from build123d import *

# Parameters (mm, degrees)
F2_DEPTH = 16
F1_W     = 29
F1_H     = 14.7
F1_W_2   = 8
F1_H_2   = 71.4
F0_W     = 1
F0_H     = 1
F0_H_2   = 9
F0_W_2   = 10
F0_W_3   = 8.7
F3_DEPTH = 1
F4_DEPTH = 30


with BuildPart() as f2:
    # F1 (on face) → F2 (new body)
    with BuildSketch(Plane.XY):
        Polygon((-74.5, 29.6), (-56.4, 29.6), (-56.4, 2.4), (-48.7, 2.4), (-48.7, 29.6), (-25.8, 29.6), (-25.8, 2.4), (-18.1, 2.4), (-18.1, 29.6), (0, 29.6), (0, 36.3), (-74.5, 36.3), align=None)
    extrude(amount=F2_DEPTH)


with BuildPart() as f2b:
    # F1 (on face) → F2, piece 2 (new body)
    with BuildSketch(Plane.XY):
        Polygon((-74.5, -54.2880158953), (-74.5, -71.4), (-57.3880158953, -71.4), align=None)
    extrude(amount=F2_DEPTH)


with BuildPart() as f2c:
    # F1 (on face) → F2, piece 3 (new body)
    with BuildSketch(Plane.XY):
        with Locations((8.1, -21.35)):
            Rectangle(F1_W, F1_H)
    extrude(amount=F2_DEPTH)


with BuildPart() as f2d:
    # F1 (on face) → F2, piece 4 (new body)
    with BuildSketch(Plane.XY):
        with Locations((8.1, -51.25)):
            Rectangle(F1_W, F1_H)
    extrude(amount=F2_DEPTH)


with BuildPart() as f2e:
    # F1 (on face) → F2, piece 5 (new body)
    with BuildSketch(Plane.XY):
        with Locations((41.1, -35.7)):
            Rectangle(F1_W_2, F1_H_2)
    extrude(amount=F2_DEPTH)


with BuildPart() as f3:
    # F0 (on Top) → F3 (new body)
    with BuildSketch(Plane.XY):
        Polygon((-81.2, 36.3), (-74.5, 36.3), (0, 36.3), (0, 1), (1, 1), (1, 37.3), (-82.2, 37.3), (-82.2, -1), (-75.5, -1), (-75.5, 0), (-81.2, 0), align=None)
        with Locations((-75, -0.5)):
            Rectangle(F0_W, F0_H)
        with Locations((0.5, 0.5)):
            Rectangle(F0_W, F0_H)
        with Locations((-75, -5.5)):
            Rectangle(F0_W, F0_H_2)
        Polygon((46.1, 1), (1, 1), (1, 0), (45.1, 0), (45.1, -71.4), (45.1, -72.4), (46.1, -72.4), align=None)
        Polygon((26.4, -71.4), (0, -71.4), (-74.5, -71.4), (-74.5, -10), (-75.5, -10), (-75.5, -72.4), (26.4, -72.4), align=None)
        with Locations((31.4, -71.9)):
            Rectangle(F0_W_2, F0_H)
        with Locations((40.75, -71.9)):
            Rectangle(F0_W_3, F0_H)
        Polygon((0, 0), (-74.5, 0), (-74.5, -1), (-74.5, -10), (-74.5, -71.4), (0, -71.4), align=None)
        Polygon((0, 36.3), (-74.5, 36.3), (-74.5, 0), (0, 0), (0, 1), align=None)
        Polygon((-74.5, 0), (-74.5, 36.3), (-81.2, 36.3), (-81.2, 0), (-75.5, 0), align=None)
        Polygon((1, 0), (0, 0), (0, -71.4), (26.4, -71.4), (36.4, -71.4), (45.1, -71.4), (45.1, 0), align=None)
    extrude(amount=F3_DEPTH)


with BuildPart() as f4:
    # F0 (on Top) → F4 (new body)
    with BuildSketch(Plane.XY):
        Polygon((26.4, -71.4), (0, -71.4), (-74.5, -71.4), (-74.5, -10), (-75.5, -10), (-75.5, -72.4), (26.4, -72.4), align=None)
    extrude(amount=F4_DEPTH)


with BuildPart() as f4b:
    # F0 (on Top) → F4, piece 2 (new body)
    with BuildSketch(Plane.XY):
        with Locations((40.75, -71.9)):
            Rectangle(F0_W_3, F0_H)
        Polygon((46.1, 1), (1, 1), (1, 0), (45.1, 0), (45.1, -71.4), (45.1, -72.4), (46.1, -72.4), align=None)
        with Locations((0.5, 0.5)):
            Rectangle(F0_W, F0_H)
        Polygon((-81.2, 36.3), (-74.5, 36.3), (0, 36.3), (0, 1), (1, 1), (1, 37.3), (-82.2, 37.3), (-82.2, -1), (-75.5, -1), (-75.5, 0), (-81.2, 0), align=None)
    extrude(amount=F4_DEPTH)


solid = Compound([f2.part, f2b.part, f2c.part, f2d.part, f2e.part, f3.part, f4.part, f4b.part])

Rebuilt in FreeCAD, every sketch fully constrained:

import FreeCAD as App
import Part
import Sketcher
from FreeCAD import Vector
Q = App.Units.Quantity


def add_polygon(sketch, points):
    """Adds a closed chain of lines whose ends are joined by coincident constraints."""
    first, n = sketch.GeometryCount, len(points)
    for a, b in zip(points, points[1:] + points[:1]):
        sketch.addGeometry(Part.LineSegment(App.Vector(*a, 0), App.Vector(*b, 0)), False)
    for i in range(n):
        sketch.addConstraint(Sketcher.Constraint("Coincident", first + i, 2, first + (i + 1) % n, 1))

doc = App.newDocument("Part")
params = doc.addObject("Spreadsheet::Sheet", "Params")
for row, (alias, value) in enumerate([
    ("sketch1_width", "18.1 mm"),
    ("sketch1_width2", "7.7 mm"),
    ("sketch1_width3", "22.9 mm"),
    ("sketch1_height", "27.2 mm"),
    ("sketch1_height2", "6.7 mm"),
    ("pad1_length", "16 mm"),
    ("sketch2_length", "24.2 mm"),
    ("pad2_length", "16 mm"),
    ("sketch3_width", "29 mm"),
    ("sketch3_height", "14.7 mm"),
    ("pad3_length", "16 mm"),
    ("sketch4_width", "29 mm"),
    ("sketch4_height", "14.7 mm"),
    ("pad4_length", "16 mm"),
    ("sketch5_width", "8 mm"),
    ("sketch5_height", "71.4 mm"),
    ("pad5_length", "16 mm"),
    ("sketch6_width", "45.1 mm"),
    ("sketch6_width2", "83.2 mm"),
    ("sketch6_width3", "6.7 mm"),
    ("sketch6_height", "73.4 mm"),
    ("sketch6_height2", "36.3 mm"),
    ("pad6_length", "1 mm"),
    ("sketch7_width", "1 mm"),
    ("sketch7_width2", "100.9 mm"),
    ("sketch7_height", "61.4 mm"),
    ("pad7_length", "30 mm"),
    ("sketch8_height", "1 mm"),
    ("sketch8_width", "9.7 mm"),
    ("sketch8_width2", "45.1 mm"),
    ("sketch8_width3", "83.2 mm"),
    ("sketch8_width4", "6.7 mm"),
    ("pad8_length", "30 mm"),
], start=1):
    params.set(f"A{row}", alias)
    params.set(f"B{row}", "=" + value)
    params.setAlias(f"B{row}", alias)

body = doc.addObject("PartDesign::Body", "Body")

# Sketch on XY plane
sketch1 = body.newObject("Sketcher::SketchObject", "Sketch")
sketch1.AttachmentSupport = (doc.getObject("XY_Plane"), [""])
sketch1.MapMode = "FlatFace"
add_polygon(sketch1, [(-74.5, 29.6), (-56.4, 29.6), (-56.4, 2.4), (-48.7, 2.4), (-48.7, 29.6), (-25.8, 29.6), (-25.8, 2.4), (-18.1, 2.4), (-18.1, 29.6), (0, 29.6), (0, 36.3), (-74.5, 36.3)])  # lines 0-11
sketch1.addConstraint([
    Sketcher.Constraint("Horizontal", 0),
    Sketcher.Constraint("Vertical", 1),
    Sketcher.Constraint("Horizontal", 2),
    Sketcher.Constraint("Vertical", 3),
    Sketcher.Constraint("Horizontal", 4),
    Sketcher.Constraint("Vertical", 5),
    Sketcher.Constraint("Horizontal", 6),
    Sketcher.Constraint("Vertical", 7),
    Sketcher.Constraint("Horizontal", 8),
    Sketcher.Constraint("Vertical", 9),
    Sketcher.Constraint("Horizontal", 10),
    Sketcher.Constraint("Vertical", 11),
    Sketcher.Constraint("PointOnObject", 8, 2, -2),
    Sketcher.Constraint("Horizontal", 0, 2, 3, 2),
    Sketcher.Constraint("Horizontal", 2, 2, 5, 2),
    Sketcher.Constraint("Horizontal", 4, 2, 7, 2),
    Sketcher.Constraint("Equal", 2, 6),
    Sketcher.Constraint("Equal", 0, 8),
    Sketcher.Constraint("DistanceX", 0, 1, 0, 2, Q("18.1 mm")),
    Sketcher.Constraint("DistanceX", 2, 1, 2, 2, Q("7.7 mm")),
    Sketcher.Constraint("DistanceX", 4, 1, 4, 2, Q("22.9 mm")),
    Sketcher.Constraint("DistanceY", 1, 2, 1, 1, Q("27.2 mm")),
    Sketcher.Constraint("DistanceY", 9, 1, 9, 2, Q("6.7 mm")),
    Sketcher.Constraint("DistanceY", -1, 1, 0, 2, Q("29.6 mm")),
])
sketch1.setExpression("Constraints[30]", "Params.sketch1_width")
sketch1.setExpression("Constraints[31]", "Params.sketch1_width2")
sketch1.setExpression("Constraints[32]", "Params.sketch1_width3")
sketch1.setExpression("Constraints[33]", "Params.sketch1_height")
sketch1.setExpression("Constraints[34]", "Params.sketch1_height2")
pad1 = body.newObject("PartDesign::Pad", "Pad")
pad1.Profile = sketch1
pad1.setExpression("Length", "Params.pad1_length")
body2 = doc.addObject("PartDesign::Body", "Body001")

# Sketch on XY plane
sketch2 = body2.newObject("Sketcher::SketchObject", "Sketch001")
sketch2.AttachmentSupport = (doc.getObject("XY_Plane001"), [""])
sketch2.MapMode = "FlatFace"
add_polygon(sketch2, [(-74.5, -54.288016), (-74.5, -71.4), (-57.388016, -71.4)])  # lines 0-2
sketch2.addConstraint([
    Sketcher.Constraint("Vertical", 0),
    Sketcher.Constraint("Horizontal", 1),
    Sketcher.Constraint("Equal", 1, 0),
    Sketcher.Constraint("Distance", 2, Q("24.2 mm")),
    Sketcher.Constraint("DistanceX", 0, 2, -1, 1, Q("74.5 mm")),
    Sketcher.Constraint("DistanceY", 0, 2, -1, 1, Q("71.4 mm")),
])
sketch2.setExpression("Constraints[6]", "Params.sketch2_length")
pad2 = body2.newObject("PartDesign::Pad", "Pad001")
pad2.Profile = sketch2
pad2.setExpression("Length", "Params.pad2_length")
body3 = doc.addObject("PartDesign::Body", "Body002")

# Sketch on XY plane
sketch3 = body3.newObject("Sketcher::SketchObject", "Sketch002")
sketch3.AttachmentSupport = (doc.getObject("XY_Plane002"), [""])
sketch3.MapMode = "FlatFace"
add_polygon(sketch3, [(-6.4, -14), (-6.4, -28.7), (22.6, -28.7), (22.6, -14)])  # lines 0-3
sketch3.addConstraint([
    Sketcher.Constraint("Vertical", 0),
    Sketcher.Constraint("Horizontal", 1),
    Sketcher.Constraint("Vertical", 2),
    Sketcher.Constraint("Horizontal", 3),
    Sketcher.Constraint("DistanceX", 1, 1, 1, 2, Q("29 mm")),
    Sketcher.Constraint("DistanceY", 0, 2, 0, 1, Q("14.7 mm")),
    Sketcher.Constraint("DistanceY", 2, 2, -1, 1, Q("14 mm")),
    Sketcher.Constraint("DistanceX", 0, 2, -1, 1, Q("6.4 mm")),
])
sketch3.setExpression("Constraints[8]", "Params.sketch3_width")
sketch3.setExpression("Constraints[9]", "Params.sketch3_height")
pad3 = body3.newObject("PartDesign::Pad", "Pad002")
pad3.Profile = sketch3
pad3.setExpression("Length", "Params.pad3_length")
body4 = doc.addObject("PartDesign::Body", "Body003")

# Sketch on XY plane
sketch4 = body4.newObject("Sketcher::SketchObject", "Sketch003")
sketch4.AttachmentSupport = (doc.getObject("XY_Plane003"), [""])
sketch4.MapMode = "FlatFace"
add_polygon(sketch4, [(-6.4, -43.9), (-6.4, -58.6), (22.6, -58.6), (22.6, -43.9)])  # lines 0-3
sketch4.addConstraint([
    Sketcher.Constraint("Vertical", 0),
    Sketcher.Constraint("Horizontal", 1),
    Sketcher.Constraint("Vertical", 2),
    Sketcher.Constraint("Horizontal", 3),
    Sketcher.Constraint("DistanceX", 1, 1, 1, 2, Q("29 mm")),
    Sketcher.Constraint("DistanceY", 0, 2, 0, 1, Q("14.7 mm")),
    Sketcher.Constraint("DistanceX", 0, 2, -1, 1, Q("6.4 mm")),
    Sketcher.Constraint("DistanceY", 0, 2, -1, 1, Q("58.6 mm")),
])
sketch4.setExpression("Constraints[8]", "Params.sketch4_width")
sketch4.setExpression("Constraints[9]", "Params.sketch4_height")
pad4 = body4.newObject("PartDesign::Pad", "Pad003")
pad4.Profile = sketch4
pad4.setExpression("Length", "Params.pad4_length")
body5 = doc.addObject("PartDesign::Body", "Body004")

# Sketch on XY plane
sketch5 = body5.newObject("Sketcher::SketchObject", "Sketch004")
sketch5.AttachmentSupport = (doc.getObject("XY_Plane004"), [""])
sketch5.MapMode = "FlatFace"
add_polygon(sketch5, [(37.1, 0), (37.1, -71.4), (45.1, -71.4), (45.1, 0)])  # lines 0-3
sketch5.addConstraint([
    Sketcher.Constraint("Vertical", 0),
    Sketcher.Constraint("Horizontal", 1),
    Sketcher.Constraint("Vertical", 2),
    Sketcher.Constraint("Horizontal", 3),
    Sketcher.Constraint("PointOnObject", 2, 2, -1),
    Sketcher.Constraint("DistanceX", 1, 1, 1, 2, Q("8 mm")),
    Sketcher.Constraint("DistanceY", 0, 2, 0, 1, Q("71.4 mm")),
    Sketcher.Constraint("DistanceX", -1, 1, 0, 2, Q("37.1 mm")),
])
sketch5.setExpression("Constraints[9]", "Params.sketch5_width")
sketch5.setExpression("Constraints[10]", "Params.sketch5_height")
pad5 = body5.newObject("PartDesign::Pad", "Pad004")
pad5.Profile = sketch5
pad5.setExpression("Length", "Params.pad5_length")
body6 = doc.addObject("PartDesign::Body", "Body005")

# Sketch on XY plane
sketch6 = body6.newObject("Sketcher::SketchObject", "Sketch005")
sketch6.AttachmentSupport = (doc.getObject("XY_Plane005"), [""])
sketch6.MapMode = "FlatFace"
add_polygon(sketch6, [(46.1, -72.4), (46.1, 1), (1, 1), (1, 37.3), (-82.2, 37.3), (-82.2, -1), (-75.5, -1), (-75.5, -72.4)])  # lines 0-7
sketch6.addConstraint([
    Sketcher.Constraint("Vertical", 0),
    Sketcher.Constraint("Horizontal", 1),
    Sketcher.Constraint("Vertical", 2),
    Sketcher.Constraint("Horizontal", 3),
    Sketcher.Constraint("Vertical", 4),
    Sketcher.Constraint("Horizontal", 5),
    Sketcher.Constraint("Vertical", 6),
    Sketcher.Constraint("Horizontal", 7),
    Sketcher.Constraint("DistanceX", 1, 2, 1, 1, Q("45.1 mm")),
    Sketcher.Constraint("DistanceX", 3, 2, 3, 1, Q("83.2 mm")),
    Sketcher.Constraint("DistanceX", 5, 1, 5, 2, Q("6.7 mm")),
    Sketcher.Constraint("DistanceY", 0, 1, 0, 2, Q("73.4 mm")),
    Sketcher.Constraint("DistanceY", 2, 1, 2, 2, Q("36.3 mm")),
    Sketcher.Constraint("DistanceY", 4, 2, 4, 1, Q("38.3 mm")),
    Sketcher.Constraint("DistanceY", -1, 1, 0, 2, Q("1 mm")),
    Sketcher.Constraint("DistanceX", -1, 1, 1, 2, Q("1 mm")),
])
sketch6.setExpression("Constraints[16]", "Params.sketch6_width")
sketch6.setExpression("Constraints[17]", "Params.sketch6_width2")
sketch6.setExpression("Constraints[18]", "Params.sketch6_width3")
sketch6.setExpression("Constraints[19]", "Params.sketch6_height")
sketch6.setExpression("Constraints[20]", "Params.sketch6_height2")
pad6 = body6.newObject("PartDesign::Pad", "Pad005")
pad6.Profile = sketch6
pad6.setExpression("Length", "Params.pad6_length")
body7 = doc.addObject("PartDesign::Body", "Body006")

# Sketch on XY plane
sketch7 = body7.newObject("Sketcher::SketchObject", "Sketch006")
sketch7.AttachmentSupport = (doc.getObject("XY_Plane006"), [""])
sketch7.MapMode = "FlatFace"
add_polygon(sketch7, [(26.4, -71.4), (-74.5, -71.4), (-74.5, -10), (-75.5, -10), (-75.5, -72.4), (26.4, -72.4)])  # lines 0-5
sketch7.addConstraint([
    Sketcher.Constraint("Horizontal", 0),
    Sketcher.Constraint("Vertical", 1),
    Sketcher.Constraint("Horizontal", 2),
    Sketcher.Constraint("Vertical", 3),
    Sketcher.Constraint("Horizontal", 4),
    Sketcher.Constraint("Vertical", 5),
    Sketcher.Constraint("Equal", 2, 5),
    Sketcher.Constraint("DistanceX", 2, 2, 2, 1, Q("1 mm")),
    Sketcher.Constraint("DistanceX", 0, 2, 0, 1, Q("100.9 mm")),
    Sketcher.Constraint("DistanceY", 1, 1, 1, 2, Q("61.4 mm")),
    Sketcher.Constraint("DistanceY", 1, 2, -1, 1, Q("10 mm")),
    Sketcher.Constraint("DistanceX", 0, 2, -1, 1, Q("74.5 mm")),
])
sketch7.setExpression("Constraints[13]", "Params.sketch7_width")
sketch7.setExpression("Constraints[14]", "Params.sketch7_width2")
sketch7.setExpression("Constraints[15]", "Params.sketch7_height")
pad7 = body7.newObject("PartDesign::Pad", "Pad006")
pad7.Profile = sketch7
pad7.setExpression("Length", "Params.pad7_length")
body8 = doc.addObject("PartDesign::Body", "Body007")

# Sketch on XY plane
sketch8 = body8.newObject("Sketcher::SketchObject", "Sketch007")
sketch8.AttachmentSupport = (doc.getObject("XY_Plane007"), [""])
sketch8.MapMode = "FlatFace"
add_polygon(sketch8, [(36.4, -71.4), (36.4, -72.4), (46.1, -72.4), (46.1, 1), (1, 1), (1, 37.3), (-82.2, 37.3), (-82.2, -1), (-75.5, -1), (-75.5, 0), (-81.2, 0), (-81.2, 36.3), (0, 36.3), (0, 0), (45.1, 0), (45.1, -71.4)])  # lines 0-15
sketch8.addConstraint([
    Sketcher.Constraint("Vertical", 0),
    Sketcher.Constraint("Horizontal", 1),
    Sketcher.Constraint("Vertical", 2),
    Sketcher.Constraint("Horizontal", 3),
    Sketcher.Constraint("Vertical", 4),
    Sketcher.Constraint("Horizontal", 5),
    Sketcher.Constraint("Vertical", 6),
    Sketcher.Constraint("Horizontal", 7),
    Sketcher.Constraint("Vertical", 8),
    Sketcher.Constraint("Horizontal", 9),
    Sketcher.Constraint("Vertical", 10),
    Sketcher.Constraint("Horizontal", 11),
    Sketcher.Constraint("Vertical", 12),
    Sketcher.Constraint("Horizontal", 13),
    Sketcher.Constraint("Vertical", 14),
    Sketcher.Constraint("Horizontal", 15),
    Sketcher.Constraint("Coincident", 12, 2, -1, 1),
    Sketcher.Constraint("PointOnObject", 8, 2, -1),
    Sketcher.Constraint("Equal", 3, 13),
    Sketcher.Constraint("Equal", 0, 8),
    Sketcher.Constraint("Equal", 4, 10),
    Sketcher.Constraint("DistanceY", 0, 2, 0, 1, Q("1 mm")),
    Sketcher.Constraint("DistanceX", 1, 1, 1, 2, Q("9.7 mm")),
    Sketcher.Constraint("DistanceX", 3, 2, 3, 1, Q("45.1 mm")),
    Sketcher.Constraint("DistanceX", 5, 2, 5, 1, Q("83.2 mm")),
    Sketcher.Constraint("DistanceX", 7, 1, 7, 2, Q("6.7 mm")),
    Sketcher.Constraint("DistanceX", 9, 2, 9, 1, Q("5.7 mm")),
    Sketcher.Constraint("DistanceX", 11, 1, 11, 2, Q("81.2 mm")),
    Sketcher.Constraint("DistanceY", 2, 1, 2, 2, Q("73.4 mm")),
    Sketcher.Constraint("DistanceY", 4, 1, 4, 2, Q("36.3 mm")),
    Sketcher.Constraint("DistanceY", 6, 2, 6, 1, Q("38.3 mm")),
])
sketch8.setExpression("Constraints[37]", "Params.sketch8_height")
sketch8.setExpression("Constraints[38]", "Params.sketch8_width")
sketch8.setExpression("Constraints[39]", "Params.sketch8_width2")
sketch8.setExpression("Constraints[40]", "Params.sketch8_width3")
sketch8.setExpression("Constraints[41]", "Params.sketch8_width4")
pad8 = body8.newObject("PartDesign::Pad", "Pad007")
pad8.Profile = sketch8
pad8.setExpression("Length", "Params.pad8_length")

doc.recompute()
